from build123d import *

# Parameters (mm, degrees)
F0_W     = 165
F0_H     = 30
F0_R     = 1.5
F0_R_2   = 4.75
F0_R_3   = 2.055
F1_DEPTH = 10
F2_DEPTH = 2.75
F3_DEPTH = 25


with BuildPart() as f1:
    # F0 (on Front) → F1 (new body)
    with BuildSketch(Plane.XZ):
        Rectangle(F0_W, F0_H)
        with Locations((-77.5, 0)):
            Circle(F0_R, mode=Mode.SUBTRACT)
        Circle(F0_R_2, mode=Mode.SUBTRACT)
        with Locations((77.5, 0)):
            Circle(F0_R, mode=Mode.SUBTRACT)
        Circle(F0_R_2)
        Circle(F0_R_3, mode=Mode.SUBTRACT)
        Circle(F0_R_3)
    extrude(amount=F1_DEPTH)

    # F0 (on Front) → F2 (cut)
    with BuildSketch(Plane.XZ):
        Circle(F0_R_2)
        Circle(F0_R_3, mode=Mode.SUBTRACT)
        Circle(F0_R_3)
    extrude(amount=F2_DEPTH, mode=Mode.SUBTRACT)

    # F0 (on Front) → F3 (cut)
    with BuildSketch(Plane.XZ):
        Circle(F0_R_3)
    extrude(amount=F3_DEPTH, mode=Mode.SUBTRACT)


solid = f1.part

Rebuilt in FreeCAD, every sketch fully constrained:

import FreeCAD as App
import Part
import Sketcher


def add_polygon(sketch, points):
    """Adds a closed chain of lines whose ends are joined by coincident constraints."""
    first, n = sketch.GeometryCount, len(points)
    for a, b in zip(points, points[1:] + points[:1]):
        sketch.addGeometry(Part.LineSegment(App.Vector(*a, 0), App.Vector(*b, 0)), False)
    for i in range(n):
        sketch.addConstraint(Sketcher.Constraint("Coincident", first + i, 2, first + (i + 1) % n, 1))

doc = App.newDocument("Part")
body = doc.addObject("PartDesign::Body", "Body")

# Sketch on XZ plane
sketch1 = body.newObject("Sketcher::SketchObject", "Sketch")
sketch1.AttachmentSupport = (doc.getObject("XZ_Plane"), [""])
sketch1.MapMode = "FlatFace"
add_polygon(sketch1, [(-82.5, 15), (-82.5, -15), (82.5, -15), (82.5, 15)])  # lines 0-3
sketch1.addGeometry(Part.Circle(App.Vector(-77.5, 0, 0), App.Vector(0, 0, 1), 1.5), False)  # 4
sketch1.addGeometry(Part.Circle(App.Vector(77.5, 0, 0), App.Vector(0, 0, 1), 1.5), False)  # 5
sketch1.addConstraint(Sketcher.Constraint("Vertical", 0))
sketch1.addConstraint(Sketcher.Constraint("Horizontal", 1))
sketch1.addConstraint(Sketcher.Constraint("Vertical", 2))
sketch1.addConstraint(Sketcher.Constraint("Horizontal", 3))
sketch1.addConstraint(Sketcher.Constraint("Equal", 4, 5))
sketch1.addConstraint(Sketcher.Constraint("Symmetric", 4, 3, 5, 3, -1, 1))
sketch1.addConstraint(Sketcher.Constraint("Symmetric", 0, 2, 2, 2, -1, 1))
sketch1.addConstraint(Sketcher.Constraint("PointOnObject", 4, 3, -1))
sketch1.addConstraint(Sketcher.Constraint("Diameter", 4, 3.0))
sketch1.addConstraint(Sketcher.Constraint("DistanceX", 1, 1, 1, 2, 165.0))
sketch1.addConstraint(Sketcher.Constraint("DistanceY", 0, 2, 0, 1, 30.0))
sketch1.addConstraint(Sketcher.Constraint("DistanceX", 4, 3, 5, 3, 155.0))
pad1 = body.newObject("PartDesign::Pad", "Pad")
pad1.Profile = sketch1
pad1.Length = 10

# Sketch on XZ plane
sketch2 = body.newObject("Sketcher::SketchObject", "Sketch001")
sketch2.AttachmentSupport = (doc.getObject("XZ_Plane"), [""])
sketch2.MapMode = "FlatFace"
sketch2.addGeometry(Part.Circle(App.Vector(0, 0, 0), App.Vector(0, 0, 1), 4.8), False)
sketch2.addConstraint(Sketcher.Constraint("Coincident", 0, 3, -1, 1))
sketch2.addConstraint(Sketcher.Constraint("Diameter", 0, 9.5))
pocket1 = body.newObject("PartDesign::Pocket", "Pocket")
pocket1.Profile = sketch2
pocket1.Length = 2.75
pocket1.Reversed = True

# Sketch on XZ plane
sketch3 = body.newObject("Sketcher::SketchObject", "Sketch002")
sketch3.AttachmentSupport = (doc.getObject("XZ_Plane"), [""])
sketch3.MapMode = "FlatFace"
sketch3.addGeometry(Part.Circle(App.Vector(0, 0, 0), App.Vector(0, 0, 1), 2.1), False)
sketch3.addConstraint(Sketcher.Constraint("Coincident", 0, 3, -1, 1))
sketch3.addConstraint(Sketcher.Constraint("Diameter", 0, 4.11))
pocket2 = body.newObject("PartDesign::Pocket", "Pocket001")
pocket2.Profile = sketch3
pocket2.Length = 25
pocket2.Reversed = True

doc.recompute()
